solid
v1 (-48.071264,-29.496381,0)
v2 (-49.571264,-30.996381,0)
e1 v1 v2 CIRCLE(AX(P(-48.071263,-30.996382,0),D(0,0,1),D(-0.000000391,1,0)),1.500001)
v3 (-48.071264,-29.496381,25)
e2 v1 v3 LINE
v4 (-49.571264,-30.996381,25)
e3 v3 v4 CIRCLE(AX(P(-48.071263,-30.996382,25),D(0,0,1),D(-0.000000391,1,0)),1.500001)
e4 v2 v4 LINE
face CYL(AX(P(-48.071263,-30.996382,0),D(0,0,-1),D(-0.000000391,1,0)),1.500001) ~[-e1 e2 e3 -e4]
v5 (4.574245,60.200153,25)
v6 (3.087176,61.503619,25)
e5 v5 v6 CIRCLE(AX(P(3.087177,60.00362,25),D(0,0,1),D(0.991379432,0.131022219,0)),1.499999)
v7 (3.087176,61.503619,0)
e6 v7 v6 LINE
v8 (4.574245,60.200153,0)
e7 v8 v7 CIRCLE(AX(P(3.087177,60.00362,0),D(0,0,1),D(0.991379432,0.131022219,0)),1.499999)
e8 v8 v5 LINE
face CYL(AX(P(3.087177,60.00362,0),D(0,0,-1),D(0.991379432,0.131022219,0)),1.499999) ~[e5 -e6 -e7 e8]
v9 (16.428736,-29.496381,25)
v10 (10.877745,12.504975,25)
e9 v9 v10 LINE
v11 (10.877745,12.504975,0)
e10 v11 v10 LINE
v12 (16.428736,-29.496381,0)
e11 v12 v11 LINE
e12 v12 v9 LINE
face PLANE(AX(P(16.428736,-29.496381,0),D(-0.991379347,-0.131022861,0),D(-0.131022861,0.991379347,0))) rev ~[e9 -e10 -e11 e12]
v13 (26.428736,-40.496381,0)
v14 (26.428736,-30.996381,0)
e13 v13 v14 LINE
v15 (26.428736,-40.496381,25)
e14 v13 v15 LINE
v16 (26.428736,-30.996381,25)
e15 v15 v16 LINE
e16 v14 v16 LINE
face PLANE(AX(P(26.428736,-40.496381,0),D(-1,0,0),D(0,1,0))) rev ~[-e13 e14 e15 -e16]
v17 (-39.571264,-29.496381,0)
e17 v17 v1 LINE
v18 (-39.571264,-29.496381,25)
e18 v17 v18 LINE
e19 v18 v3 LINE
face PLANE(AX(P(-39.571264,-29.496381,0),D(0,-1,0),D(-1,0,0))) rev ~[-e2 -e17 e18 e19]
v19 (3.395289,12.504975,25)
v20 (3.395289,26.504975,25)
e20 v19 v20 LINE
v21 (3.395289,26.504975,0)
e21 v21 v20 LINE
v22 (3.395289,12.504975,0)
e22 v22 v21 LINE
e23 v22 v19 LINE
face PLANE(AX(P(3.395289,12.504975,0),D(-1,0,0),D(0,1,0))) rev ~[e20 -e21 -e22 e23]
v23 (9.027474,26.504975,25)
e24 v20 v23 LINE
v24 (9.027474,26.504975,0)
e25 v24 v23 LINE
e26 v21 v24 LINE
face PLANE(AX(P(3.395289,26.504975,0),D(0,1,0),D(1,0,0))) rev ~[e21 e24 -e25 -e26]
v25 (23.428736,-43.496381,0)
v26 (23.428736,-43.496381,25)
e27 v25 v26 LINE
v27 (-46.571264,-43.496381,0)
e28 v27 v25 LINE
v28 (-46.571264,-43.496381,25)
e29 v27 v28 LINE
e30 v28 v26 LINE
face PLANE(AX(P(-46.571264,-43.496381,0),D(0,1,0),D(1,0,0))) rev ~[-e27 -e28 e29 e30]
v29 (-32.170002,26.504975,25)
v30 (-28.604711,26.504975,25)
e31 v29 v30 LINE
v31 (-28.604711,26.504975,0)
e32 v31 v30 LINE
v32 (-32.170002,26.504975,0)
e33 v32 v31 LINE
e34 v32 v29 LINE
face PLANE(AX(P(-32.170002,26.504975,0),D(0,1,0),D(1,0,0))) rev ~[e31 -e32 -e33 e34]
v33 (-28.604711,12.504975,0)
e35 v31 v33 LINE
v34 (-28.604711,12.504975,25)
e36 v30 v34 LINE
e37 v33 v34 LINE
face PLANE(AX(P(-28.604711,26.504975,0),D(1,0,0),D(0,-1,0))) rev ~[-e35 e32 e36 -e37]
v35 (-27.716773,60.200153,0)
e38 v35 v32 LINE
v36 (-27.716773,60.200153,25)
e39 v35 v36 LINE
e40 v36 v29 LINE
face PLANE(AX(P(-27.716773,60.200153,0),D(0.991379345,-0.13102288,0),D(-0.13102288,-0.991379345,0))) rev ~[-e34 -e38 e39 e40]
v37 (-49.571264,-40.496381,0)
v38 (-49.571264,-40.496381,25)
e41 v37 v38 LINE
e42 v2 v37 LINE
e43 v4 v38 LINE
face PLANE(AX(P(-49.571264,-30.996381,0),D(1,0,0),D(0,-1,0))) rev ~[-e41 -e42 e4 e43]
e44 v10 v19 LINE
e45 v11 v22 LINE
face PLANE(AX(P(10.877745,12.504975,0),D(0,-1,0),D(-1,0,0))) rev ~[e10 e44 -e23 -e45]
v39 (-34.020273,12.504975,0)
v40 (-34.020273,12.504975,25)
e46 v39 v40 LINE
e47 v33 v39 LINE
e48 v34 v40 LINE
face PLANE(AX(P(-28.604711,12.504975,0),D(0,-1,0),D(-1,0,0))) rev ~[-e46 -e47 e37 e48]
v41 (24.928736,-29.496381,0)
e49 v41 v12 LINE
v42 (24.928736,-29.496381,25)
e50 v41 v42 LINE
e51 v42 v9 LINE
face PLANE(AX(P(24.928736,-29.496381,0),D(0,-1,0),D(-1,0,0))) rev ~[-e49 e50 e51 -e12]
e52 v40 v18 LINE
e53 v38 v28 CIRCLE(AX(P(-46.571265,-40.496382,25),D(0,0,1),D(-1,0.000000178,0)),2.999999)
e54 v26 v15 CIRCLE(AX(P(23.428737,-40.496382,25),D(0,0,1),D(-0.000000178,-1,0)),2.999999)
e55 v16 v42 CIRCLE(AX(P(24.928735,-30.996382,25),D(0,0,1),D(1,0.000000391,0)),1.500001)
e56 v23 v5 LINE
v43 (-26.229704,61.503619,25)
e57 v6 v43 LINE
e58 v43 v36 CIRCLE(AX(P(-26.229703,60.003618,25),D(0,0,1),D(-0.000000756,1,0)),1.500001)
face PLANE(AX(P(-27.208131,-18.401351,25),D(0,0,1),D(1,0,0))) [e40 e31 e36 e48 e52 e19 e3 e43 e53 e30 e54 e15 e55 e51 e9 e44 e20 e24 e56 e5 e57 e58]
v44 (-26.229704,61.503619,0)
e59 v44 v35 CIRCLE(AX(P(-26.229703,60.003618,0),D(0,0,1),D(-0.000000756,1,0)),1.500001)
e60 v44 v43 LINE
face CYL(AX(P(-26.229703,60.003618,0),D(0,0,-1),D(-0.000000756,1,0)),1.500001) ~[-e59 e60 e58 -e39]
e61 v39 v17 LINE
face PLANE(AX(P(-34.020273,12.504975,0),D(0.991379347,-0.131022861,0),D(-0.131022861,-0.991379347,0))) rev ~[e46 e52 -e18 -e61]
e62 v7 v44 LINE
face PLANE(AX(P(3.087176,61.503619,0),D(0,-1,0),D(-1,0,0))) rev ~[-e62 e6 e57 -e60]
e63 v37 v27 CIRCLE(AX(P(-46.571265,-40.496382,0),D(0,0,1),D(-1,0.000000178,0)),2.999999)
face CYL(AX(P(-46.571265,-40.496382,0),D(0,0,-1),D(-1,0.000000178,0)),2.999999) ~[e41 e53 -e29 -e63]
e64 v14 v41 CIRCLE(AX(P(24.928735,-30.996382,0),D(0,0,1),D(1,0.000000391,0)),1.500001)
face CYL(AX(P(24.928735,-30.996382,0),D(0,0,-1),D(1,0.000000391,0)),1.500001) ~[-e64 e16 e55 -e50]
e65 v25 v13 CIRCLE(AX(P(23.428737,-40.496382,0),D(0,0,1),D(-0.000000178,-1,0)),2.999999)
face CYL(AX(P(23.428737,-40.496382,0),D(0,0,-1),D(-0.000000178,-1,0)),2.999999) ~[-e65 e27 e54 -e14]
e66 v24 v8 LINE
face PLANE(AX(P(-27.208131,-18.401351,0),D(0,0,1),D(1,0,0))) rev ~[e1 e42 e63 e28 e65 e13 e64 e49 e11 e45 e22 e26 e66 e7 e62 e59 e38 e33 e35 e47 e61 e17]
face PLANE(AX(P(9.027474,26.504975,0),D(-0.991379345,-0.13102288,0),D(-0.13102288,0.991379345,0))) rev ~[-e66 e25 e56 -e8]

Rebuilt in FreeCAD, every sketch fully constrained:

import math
import FreeCAD as App
import Part
import Sketcher
from FreeCAD import Vector

doc = App.newDocument("Part")
body = doc.addObject("PartDesign::Body", "Body")

sketch1 = body.newObject("Sketcher::SketchObject", "Sketch")
sketch1.AttachmentSupport = (doc.getObject("XY_Plane"), [""])
sketch1.MapMode = "FlatFace"
sketch1.addGeometry([
    Part.LineSegment(Vector(-49.6, -31, 0), Vector(-49.6, -40.5, 0)),
    Part.ArcOfCircle(Part.Circle(Vector(-46.6, -40.5, 0), Vector(0, 0, 1), 3), math.radians(180), math.radians(270)),
    Part.LineSegment(Vector(-46.6, -43.5, 0), Vector(23.4, -43.5, 0)),
    Part.ArcOfCircle(Part.Circle(Vector(23.4, -40.5, 0), Vector(0, 0, 1), 3), math.radians(-90), math.radians(0)),
    Part.LineSegment(Vector(26.4, -40.5, 0), Vector(26.4, -31, 0)),
    Part.ArcOfCircle(Part.Circle(Vector(24.9, -31, 0), Vector(0, 0, 1), 1.5), math.radians(0), math.radians(90)),
    Part.LineSegment(Vector(24.9, -29.5, 0), Vector(16.4, -29.5, 0)),
    Part.LineSegment(Vector(16.4, -29.5, 0), Vector(10.9, 12.5, 0)),
    Part.LineSegment(Vector(10.9, 12.5, 0), Vector(3.4, 12.5, 0)),
    Part.LineSegment(Vector(3.4, 12.5, 0), Vector(3.4, 26.5, 0)),
    Part.LineSegment(Vector(3.4, 26.5, 0), Vector(9, 26.5, 0)),
    Part.LineSegment(Vector(9, 26.5, 0), Vector(4.6, 60.2, 0)),
    Part.ArcOfCircle(Part.Circle(Vector(3.1, 60, 0), Vector(0, 0, 1), 1.5), math.radians(8), math.radians(90)),
    Part.LineSegment(Vector(3.1, 61.5, 0), Vector(-26.2, 61.5, 0)),
    Part.ArcOfCircle(Part.Circle(Vector(-26.2, 60, 0), Vector(0, 0, 1), 1.5), math.radians(90), math.radians(172)),
    Part.LineSegment(Vector(-27.7, 60.2, 0), Vector(-32.2, 26.5, 0)),
    Part.LineSegment(Vector(-32.2, 26.5, 0), Vector(-28.6, 26.5, 0)),
    Part.LineSegment(Vector(-28.6, 26.5, 0), Vector(-28.6, 12.5, 0)),
    Part.LineSegment(Vector(-28.6, 12.5, 0), Vector(-34, 12.5, 0)),
    Part.LineSegment(Vector(-34, 12.5, 0), Vector(-39.6, -29.5, 0)),
    Part.LineSegment(Vector(-39.6, -29.5, 0), Vector(-48.1, -29.5, 0)),
    Part.ArcOfCircle(Part.Circle(Vector(-48.1, -31, 0), Vector(0, 0, 1), 1.5), math.radians(90), math.radians(180)),
], False)
sketch1.addConstraint([
    Sketcher.Constraint("Tangent", 0, 2, 1, 1),
    Sketcher.Constraint("Tangent", 1, 2, 2, 1),
    Sketcher.Constraint("Tangent", 2, 2, 3, 1),
    Sketcher.Constraint("Tangent", 3, 2, 4, 1),
    Sketcher.Constraint("Tangent", 4, 2, 5, 1),
    Sketcher.Constraint("Tangent", 5, 2, 6, 1),
    Sketcher.Constraint("Coincident", 6, 2, 7, 1),
    Sketcher.Constraint("Coincident", 7, 2, 8, 1),
    Sketcher.Constraint("Coincident", 8, 2, 9, 1),
    Sketcher.Constraint("Coincident", 9, 2, 10, 1),
    Sketcher.Constraint("Coincident", 10, 2, 11, 1),
    Sketcher.Constraint("Tangent", 11, 2, 12, 1),
    Sketcher.Constraint("Tangent", 12, 2, 13, 1),
    Sketcher.Constraint("Tangent", 13, 2, 14, 1),
    Sketcher.Constraint("Tangent", 14, 2, 15, 1),
    Sketcher.Constraint("Coincident", 15, 2, 16, 1),
    Sketcher.Constraint("Coincident", 16, 2, 17, 1),
    Sketcher.Constraint("Coincident", 17, 2, 18, 1),
    Sketcher.Constraint("Coincident", 18, 2, 19, 1),
    Sketcher.Constraint("Coincident", 19, 2, 20, 1),
    Sketcher.Constraint("Tangent", 20, 2, 21, 1),
    Sketcher.Constraint("Tangent", 21, 2, 0, 1),
    Sketcher.Constraint("Vertical", 0),
    Sketcher.Constraint("Horizontal", 2),
    Sketcher.Constraint("Vertical", 4),
    Sketcher.Constraint("Horizontal", 6),
    Sketcher.Constraint("Horizontal", 8),
    Sketcher.Constraint("Vertical", 9),
    Sketcher.Constraint("Horizontal", 10),
    Sketcher.Constraint("Horizontal", 13),
    Sketcher.Constraint("Horizontal", 16),
    Sketcher.Constraint("Vertical", 17),
    Sketcher.Constraint("Horizontal", 18),
    Sketcher.Constraint("Horizontal", 20),
    Sketcher.Constraint("Equal", 1, 3),
    Sketcher.Constraint("Equal", 5, 12),
    Sketcher.Constraint("Equal", 12, 14),
    Sketcher.Constraint("Equal", 14, 21),
    Sketcher.Constraint("Parallel", 7, 11),
    Sketcher.Constraint("Parallel", 15, 19),
    Sketcher.Constraint("Horizontal", 5, 3, 21, 3),
    Sketcher.Constraint("Horizontal", 11, 2, 14, 2),
    Sketcher.Constraint("Horizontal", 10, 2, 15, 2),
    Sketcher.Constraint("Horizontal", 8, 2, 17, 2),
    Sketcher.Constraint("Equal", 6, 20),
    Sketcher.Constraint("Radius", 1, 2.999999),
    Sketcher.Constraint("Radius", 5, 1.500001),
    Sketcher.Constraint("DistanceX", 2, 1, 2, 2, 70.0),
    Sketcher.Constraint("DistanceY", 9, 1, 9, 2, 14.0),
    Sketcher.Constraint("DistanceX", 6, 2, 6, 1, 8.5),
    Sketcher.Constraint("DistanceY", 0, 2, 0, 1, 9.5),
    Sketcher.Constraint("DistanceY", 5, 3, 12, 3, 91.000001),
    Sketcher.Constraint("DistanceX", 16, 2, 9, 2, 32.0),
    Sketcher.Constraint("DistanceX", 15, 2, -1, 1, 32.170002),
    Sketcher.Constraint("DistanceX", 13, 2, 13, 1, 29.31688),
    Sketcher.Constraint("DistanceX", 16, 1, 16, 2, 3.565291),
    Sketcher.Constraint("DistanceX", 12, 2, 10, 2, 5.940298),
    Sketcher.Constraint("Distance", 11, 33.988178),
    Sketcher.Constraint("DistanceX", 8, 2, 8, 1, 7.482456),
    Sketcher.Constraint("DistanceY", 1, 3, -1, 1, 40.496382),
])
pad1 = body.newObject("PartDesign::Pad", "Pad")
pad1.Profile = sketch1
pad1.Length = 25

doc.recompute()
